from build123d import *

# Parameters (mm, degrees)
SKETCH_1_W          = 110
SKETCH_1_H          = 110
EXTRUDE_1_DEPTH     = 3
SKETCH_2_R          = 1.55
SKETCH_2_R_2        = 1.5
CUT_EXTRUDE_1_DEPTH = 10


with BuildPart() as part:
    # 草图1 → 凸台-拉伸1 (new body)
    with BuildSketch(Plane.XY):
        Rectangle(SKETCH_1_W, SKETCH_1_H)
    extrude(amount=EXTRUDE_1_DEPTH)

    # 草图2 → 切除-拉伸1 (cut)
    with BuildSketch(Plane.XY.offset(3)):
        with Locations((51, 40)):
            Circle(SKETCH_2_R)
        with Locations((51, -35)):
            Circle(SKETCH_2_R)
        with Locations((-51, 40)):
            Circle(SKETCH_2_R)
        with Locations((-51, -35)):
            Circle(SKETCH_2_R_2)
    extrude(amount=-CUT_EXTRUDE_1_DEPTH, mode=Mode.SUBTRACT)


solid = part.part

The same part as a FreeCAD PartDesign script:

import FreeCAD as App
import Part
import Sketcher

V = App.Vector


def add_polygon(sketch, points):
    """Adds a closed chain of lines whose ends are joined by coincident constraints."""
    first, n = sketch.GeometryCount, len(points)
    for a, b in zip(points, points[1:] + points[:1]):
        sketch.addGeometry(Part.LineSegment(App.Vector(*a, 0), App.Vector(*b, 0)), False)
    for i in range(n):
        sketch.addConstraint(Sketcher.Constraint("Coincident", first + i, 2, first + (i + 1) % n, 1))

doc = App.newDocument("Part")
body = doc.addObject("PartDesign::Body", "Body")

# Sketch on XY plane
sketch1 = body.newObject("Sketcher::SketchObject", "Sketch")
sketch1.AttachmentSupport = (doc.getObject("XY_Plane"), [""])
sketch1.MapMode = "FlatFace"
add_polygon(sketch1, [(-55, 55), (-55, -55), (55, -55), (55, 55)])  # lines 0-3
sketch1.addConstraint([
    Sketcher.Constraint("Vertical", 0),
    Sketcher.Constraint("Horizontal", 1),
    Sketcher.Constraint("Vertical", 2),
    Sketcher.Constraint("Horizontal", 3),
    Sketcher.Constraint("Symmetric", 0, 2, 2, 2, -1, 1),
    Sketcher.Constraint("Equal", 3, 0),
    Sketcher.Constraint("DistanceX", 1, 1, 1, 2, 110.0),
])
pad1 = body.newObject("PartDesign::Pad", "Pad")
pad1.Profile = sketch1
pad1.Length = 3

# Sketch on XY plane
sketch2 = body.newObject("Sketcher::SketchObject", "Sketch001")
sketch2.AttachmentSupport = (doc.getObject("XY_Plane"), [""])
sketch2.MapMode = "FlatFace"
sketch2.AttachmentOffset = App.Placement(V(0, 0, 3), App.Rotation())
sketch2.addGeometry([
    Part.Circle(V(51, 40, 0), V(0, 0, 1), 1.6),
    Part.Circle(V(51, -35, 0), V(0, 0, 1), 1.6),
    Part.Circle(V(-51, 40, 0), V(0, 0, 1), 1.6),
    Part.Circle(V(-51, -35, 0), V(0, 0, 1), 1.5),
], False)
sketch2.addConstraint([
    Sketcher.Constraint("Equal", 0, 1),
    Sketcher.Constraint("Equal", 1, 2),
    Sketcher.Constraint("Symmetric", 0, 3, 2, 3, -2),
    Sketcher.Constraint("Symmetric", 1, 3, 3, 3, -2),
    Sketcher.Constraint("Vertical", 0, 3, 1, 3),
    Sketcher.Constraint("Diameter", 3, 3.0),
    Sketcher.Constraint("Diameter", 0, 3.1),
    Sketcher.Constraint("DistanceX", -1, 1, 0, 3, 51.0),
    Sketcher.Constraint("DistanceY", -1, 1, 0, 3, 40.0),
    Sketcher.Constraint("DistanceY", 1, 3, -1, 1, 35.0),
])
pocket1 = body.newObject("PartDesign::Pocket", "Pocket")
pocket1.Profile = sketch2
pocket1.Length = 10

doc.recompute()
